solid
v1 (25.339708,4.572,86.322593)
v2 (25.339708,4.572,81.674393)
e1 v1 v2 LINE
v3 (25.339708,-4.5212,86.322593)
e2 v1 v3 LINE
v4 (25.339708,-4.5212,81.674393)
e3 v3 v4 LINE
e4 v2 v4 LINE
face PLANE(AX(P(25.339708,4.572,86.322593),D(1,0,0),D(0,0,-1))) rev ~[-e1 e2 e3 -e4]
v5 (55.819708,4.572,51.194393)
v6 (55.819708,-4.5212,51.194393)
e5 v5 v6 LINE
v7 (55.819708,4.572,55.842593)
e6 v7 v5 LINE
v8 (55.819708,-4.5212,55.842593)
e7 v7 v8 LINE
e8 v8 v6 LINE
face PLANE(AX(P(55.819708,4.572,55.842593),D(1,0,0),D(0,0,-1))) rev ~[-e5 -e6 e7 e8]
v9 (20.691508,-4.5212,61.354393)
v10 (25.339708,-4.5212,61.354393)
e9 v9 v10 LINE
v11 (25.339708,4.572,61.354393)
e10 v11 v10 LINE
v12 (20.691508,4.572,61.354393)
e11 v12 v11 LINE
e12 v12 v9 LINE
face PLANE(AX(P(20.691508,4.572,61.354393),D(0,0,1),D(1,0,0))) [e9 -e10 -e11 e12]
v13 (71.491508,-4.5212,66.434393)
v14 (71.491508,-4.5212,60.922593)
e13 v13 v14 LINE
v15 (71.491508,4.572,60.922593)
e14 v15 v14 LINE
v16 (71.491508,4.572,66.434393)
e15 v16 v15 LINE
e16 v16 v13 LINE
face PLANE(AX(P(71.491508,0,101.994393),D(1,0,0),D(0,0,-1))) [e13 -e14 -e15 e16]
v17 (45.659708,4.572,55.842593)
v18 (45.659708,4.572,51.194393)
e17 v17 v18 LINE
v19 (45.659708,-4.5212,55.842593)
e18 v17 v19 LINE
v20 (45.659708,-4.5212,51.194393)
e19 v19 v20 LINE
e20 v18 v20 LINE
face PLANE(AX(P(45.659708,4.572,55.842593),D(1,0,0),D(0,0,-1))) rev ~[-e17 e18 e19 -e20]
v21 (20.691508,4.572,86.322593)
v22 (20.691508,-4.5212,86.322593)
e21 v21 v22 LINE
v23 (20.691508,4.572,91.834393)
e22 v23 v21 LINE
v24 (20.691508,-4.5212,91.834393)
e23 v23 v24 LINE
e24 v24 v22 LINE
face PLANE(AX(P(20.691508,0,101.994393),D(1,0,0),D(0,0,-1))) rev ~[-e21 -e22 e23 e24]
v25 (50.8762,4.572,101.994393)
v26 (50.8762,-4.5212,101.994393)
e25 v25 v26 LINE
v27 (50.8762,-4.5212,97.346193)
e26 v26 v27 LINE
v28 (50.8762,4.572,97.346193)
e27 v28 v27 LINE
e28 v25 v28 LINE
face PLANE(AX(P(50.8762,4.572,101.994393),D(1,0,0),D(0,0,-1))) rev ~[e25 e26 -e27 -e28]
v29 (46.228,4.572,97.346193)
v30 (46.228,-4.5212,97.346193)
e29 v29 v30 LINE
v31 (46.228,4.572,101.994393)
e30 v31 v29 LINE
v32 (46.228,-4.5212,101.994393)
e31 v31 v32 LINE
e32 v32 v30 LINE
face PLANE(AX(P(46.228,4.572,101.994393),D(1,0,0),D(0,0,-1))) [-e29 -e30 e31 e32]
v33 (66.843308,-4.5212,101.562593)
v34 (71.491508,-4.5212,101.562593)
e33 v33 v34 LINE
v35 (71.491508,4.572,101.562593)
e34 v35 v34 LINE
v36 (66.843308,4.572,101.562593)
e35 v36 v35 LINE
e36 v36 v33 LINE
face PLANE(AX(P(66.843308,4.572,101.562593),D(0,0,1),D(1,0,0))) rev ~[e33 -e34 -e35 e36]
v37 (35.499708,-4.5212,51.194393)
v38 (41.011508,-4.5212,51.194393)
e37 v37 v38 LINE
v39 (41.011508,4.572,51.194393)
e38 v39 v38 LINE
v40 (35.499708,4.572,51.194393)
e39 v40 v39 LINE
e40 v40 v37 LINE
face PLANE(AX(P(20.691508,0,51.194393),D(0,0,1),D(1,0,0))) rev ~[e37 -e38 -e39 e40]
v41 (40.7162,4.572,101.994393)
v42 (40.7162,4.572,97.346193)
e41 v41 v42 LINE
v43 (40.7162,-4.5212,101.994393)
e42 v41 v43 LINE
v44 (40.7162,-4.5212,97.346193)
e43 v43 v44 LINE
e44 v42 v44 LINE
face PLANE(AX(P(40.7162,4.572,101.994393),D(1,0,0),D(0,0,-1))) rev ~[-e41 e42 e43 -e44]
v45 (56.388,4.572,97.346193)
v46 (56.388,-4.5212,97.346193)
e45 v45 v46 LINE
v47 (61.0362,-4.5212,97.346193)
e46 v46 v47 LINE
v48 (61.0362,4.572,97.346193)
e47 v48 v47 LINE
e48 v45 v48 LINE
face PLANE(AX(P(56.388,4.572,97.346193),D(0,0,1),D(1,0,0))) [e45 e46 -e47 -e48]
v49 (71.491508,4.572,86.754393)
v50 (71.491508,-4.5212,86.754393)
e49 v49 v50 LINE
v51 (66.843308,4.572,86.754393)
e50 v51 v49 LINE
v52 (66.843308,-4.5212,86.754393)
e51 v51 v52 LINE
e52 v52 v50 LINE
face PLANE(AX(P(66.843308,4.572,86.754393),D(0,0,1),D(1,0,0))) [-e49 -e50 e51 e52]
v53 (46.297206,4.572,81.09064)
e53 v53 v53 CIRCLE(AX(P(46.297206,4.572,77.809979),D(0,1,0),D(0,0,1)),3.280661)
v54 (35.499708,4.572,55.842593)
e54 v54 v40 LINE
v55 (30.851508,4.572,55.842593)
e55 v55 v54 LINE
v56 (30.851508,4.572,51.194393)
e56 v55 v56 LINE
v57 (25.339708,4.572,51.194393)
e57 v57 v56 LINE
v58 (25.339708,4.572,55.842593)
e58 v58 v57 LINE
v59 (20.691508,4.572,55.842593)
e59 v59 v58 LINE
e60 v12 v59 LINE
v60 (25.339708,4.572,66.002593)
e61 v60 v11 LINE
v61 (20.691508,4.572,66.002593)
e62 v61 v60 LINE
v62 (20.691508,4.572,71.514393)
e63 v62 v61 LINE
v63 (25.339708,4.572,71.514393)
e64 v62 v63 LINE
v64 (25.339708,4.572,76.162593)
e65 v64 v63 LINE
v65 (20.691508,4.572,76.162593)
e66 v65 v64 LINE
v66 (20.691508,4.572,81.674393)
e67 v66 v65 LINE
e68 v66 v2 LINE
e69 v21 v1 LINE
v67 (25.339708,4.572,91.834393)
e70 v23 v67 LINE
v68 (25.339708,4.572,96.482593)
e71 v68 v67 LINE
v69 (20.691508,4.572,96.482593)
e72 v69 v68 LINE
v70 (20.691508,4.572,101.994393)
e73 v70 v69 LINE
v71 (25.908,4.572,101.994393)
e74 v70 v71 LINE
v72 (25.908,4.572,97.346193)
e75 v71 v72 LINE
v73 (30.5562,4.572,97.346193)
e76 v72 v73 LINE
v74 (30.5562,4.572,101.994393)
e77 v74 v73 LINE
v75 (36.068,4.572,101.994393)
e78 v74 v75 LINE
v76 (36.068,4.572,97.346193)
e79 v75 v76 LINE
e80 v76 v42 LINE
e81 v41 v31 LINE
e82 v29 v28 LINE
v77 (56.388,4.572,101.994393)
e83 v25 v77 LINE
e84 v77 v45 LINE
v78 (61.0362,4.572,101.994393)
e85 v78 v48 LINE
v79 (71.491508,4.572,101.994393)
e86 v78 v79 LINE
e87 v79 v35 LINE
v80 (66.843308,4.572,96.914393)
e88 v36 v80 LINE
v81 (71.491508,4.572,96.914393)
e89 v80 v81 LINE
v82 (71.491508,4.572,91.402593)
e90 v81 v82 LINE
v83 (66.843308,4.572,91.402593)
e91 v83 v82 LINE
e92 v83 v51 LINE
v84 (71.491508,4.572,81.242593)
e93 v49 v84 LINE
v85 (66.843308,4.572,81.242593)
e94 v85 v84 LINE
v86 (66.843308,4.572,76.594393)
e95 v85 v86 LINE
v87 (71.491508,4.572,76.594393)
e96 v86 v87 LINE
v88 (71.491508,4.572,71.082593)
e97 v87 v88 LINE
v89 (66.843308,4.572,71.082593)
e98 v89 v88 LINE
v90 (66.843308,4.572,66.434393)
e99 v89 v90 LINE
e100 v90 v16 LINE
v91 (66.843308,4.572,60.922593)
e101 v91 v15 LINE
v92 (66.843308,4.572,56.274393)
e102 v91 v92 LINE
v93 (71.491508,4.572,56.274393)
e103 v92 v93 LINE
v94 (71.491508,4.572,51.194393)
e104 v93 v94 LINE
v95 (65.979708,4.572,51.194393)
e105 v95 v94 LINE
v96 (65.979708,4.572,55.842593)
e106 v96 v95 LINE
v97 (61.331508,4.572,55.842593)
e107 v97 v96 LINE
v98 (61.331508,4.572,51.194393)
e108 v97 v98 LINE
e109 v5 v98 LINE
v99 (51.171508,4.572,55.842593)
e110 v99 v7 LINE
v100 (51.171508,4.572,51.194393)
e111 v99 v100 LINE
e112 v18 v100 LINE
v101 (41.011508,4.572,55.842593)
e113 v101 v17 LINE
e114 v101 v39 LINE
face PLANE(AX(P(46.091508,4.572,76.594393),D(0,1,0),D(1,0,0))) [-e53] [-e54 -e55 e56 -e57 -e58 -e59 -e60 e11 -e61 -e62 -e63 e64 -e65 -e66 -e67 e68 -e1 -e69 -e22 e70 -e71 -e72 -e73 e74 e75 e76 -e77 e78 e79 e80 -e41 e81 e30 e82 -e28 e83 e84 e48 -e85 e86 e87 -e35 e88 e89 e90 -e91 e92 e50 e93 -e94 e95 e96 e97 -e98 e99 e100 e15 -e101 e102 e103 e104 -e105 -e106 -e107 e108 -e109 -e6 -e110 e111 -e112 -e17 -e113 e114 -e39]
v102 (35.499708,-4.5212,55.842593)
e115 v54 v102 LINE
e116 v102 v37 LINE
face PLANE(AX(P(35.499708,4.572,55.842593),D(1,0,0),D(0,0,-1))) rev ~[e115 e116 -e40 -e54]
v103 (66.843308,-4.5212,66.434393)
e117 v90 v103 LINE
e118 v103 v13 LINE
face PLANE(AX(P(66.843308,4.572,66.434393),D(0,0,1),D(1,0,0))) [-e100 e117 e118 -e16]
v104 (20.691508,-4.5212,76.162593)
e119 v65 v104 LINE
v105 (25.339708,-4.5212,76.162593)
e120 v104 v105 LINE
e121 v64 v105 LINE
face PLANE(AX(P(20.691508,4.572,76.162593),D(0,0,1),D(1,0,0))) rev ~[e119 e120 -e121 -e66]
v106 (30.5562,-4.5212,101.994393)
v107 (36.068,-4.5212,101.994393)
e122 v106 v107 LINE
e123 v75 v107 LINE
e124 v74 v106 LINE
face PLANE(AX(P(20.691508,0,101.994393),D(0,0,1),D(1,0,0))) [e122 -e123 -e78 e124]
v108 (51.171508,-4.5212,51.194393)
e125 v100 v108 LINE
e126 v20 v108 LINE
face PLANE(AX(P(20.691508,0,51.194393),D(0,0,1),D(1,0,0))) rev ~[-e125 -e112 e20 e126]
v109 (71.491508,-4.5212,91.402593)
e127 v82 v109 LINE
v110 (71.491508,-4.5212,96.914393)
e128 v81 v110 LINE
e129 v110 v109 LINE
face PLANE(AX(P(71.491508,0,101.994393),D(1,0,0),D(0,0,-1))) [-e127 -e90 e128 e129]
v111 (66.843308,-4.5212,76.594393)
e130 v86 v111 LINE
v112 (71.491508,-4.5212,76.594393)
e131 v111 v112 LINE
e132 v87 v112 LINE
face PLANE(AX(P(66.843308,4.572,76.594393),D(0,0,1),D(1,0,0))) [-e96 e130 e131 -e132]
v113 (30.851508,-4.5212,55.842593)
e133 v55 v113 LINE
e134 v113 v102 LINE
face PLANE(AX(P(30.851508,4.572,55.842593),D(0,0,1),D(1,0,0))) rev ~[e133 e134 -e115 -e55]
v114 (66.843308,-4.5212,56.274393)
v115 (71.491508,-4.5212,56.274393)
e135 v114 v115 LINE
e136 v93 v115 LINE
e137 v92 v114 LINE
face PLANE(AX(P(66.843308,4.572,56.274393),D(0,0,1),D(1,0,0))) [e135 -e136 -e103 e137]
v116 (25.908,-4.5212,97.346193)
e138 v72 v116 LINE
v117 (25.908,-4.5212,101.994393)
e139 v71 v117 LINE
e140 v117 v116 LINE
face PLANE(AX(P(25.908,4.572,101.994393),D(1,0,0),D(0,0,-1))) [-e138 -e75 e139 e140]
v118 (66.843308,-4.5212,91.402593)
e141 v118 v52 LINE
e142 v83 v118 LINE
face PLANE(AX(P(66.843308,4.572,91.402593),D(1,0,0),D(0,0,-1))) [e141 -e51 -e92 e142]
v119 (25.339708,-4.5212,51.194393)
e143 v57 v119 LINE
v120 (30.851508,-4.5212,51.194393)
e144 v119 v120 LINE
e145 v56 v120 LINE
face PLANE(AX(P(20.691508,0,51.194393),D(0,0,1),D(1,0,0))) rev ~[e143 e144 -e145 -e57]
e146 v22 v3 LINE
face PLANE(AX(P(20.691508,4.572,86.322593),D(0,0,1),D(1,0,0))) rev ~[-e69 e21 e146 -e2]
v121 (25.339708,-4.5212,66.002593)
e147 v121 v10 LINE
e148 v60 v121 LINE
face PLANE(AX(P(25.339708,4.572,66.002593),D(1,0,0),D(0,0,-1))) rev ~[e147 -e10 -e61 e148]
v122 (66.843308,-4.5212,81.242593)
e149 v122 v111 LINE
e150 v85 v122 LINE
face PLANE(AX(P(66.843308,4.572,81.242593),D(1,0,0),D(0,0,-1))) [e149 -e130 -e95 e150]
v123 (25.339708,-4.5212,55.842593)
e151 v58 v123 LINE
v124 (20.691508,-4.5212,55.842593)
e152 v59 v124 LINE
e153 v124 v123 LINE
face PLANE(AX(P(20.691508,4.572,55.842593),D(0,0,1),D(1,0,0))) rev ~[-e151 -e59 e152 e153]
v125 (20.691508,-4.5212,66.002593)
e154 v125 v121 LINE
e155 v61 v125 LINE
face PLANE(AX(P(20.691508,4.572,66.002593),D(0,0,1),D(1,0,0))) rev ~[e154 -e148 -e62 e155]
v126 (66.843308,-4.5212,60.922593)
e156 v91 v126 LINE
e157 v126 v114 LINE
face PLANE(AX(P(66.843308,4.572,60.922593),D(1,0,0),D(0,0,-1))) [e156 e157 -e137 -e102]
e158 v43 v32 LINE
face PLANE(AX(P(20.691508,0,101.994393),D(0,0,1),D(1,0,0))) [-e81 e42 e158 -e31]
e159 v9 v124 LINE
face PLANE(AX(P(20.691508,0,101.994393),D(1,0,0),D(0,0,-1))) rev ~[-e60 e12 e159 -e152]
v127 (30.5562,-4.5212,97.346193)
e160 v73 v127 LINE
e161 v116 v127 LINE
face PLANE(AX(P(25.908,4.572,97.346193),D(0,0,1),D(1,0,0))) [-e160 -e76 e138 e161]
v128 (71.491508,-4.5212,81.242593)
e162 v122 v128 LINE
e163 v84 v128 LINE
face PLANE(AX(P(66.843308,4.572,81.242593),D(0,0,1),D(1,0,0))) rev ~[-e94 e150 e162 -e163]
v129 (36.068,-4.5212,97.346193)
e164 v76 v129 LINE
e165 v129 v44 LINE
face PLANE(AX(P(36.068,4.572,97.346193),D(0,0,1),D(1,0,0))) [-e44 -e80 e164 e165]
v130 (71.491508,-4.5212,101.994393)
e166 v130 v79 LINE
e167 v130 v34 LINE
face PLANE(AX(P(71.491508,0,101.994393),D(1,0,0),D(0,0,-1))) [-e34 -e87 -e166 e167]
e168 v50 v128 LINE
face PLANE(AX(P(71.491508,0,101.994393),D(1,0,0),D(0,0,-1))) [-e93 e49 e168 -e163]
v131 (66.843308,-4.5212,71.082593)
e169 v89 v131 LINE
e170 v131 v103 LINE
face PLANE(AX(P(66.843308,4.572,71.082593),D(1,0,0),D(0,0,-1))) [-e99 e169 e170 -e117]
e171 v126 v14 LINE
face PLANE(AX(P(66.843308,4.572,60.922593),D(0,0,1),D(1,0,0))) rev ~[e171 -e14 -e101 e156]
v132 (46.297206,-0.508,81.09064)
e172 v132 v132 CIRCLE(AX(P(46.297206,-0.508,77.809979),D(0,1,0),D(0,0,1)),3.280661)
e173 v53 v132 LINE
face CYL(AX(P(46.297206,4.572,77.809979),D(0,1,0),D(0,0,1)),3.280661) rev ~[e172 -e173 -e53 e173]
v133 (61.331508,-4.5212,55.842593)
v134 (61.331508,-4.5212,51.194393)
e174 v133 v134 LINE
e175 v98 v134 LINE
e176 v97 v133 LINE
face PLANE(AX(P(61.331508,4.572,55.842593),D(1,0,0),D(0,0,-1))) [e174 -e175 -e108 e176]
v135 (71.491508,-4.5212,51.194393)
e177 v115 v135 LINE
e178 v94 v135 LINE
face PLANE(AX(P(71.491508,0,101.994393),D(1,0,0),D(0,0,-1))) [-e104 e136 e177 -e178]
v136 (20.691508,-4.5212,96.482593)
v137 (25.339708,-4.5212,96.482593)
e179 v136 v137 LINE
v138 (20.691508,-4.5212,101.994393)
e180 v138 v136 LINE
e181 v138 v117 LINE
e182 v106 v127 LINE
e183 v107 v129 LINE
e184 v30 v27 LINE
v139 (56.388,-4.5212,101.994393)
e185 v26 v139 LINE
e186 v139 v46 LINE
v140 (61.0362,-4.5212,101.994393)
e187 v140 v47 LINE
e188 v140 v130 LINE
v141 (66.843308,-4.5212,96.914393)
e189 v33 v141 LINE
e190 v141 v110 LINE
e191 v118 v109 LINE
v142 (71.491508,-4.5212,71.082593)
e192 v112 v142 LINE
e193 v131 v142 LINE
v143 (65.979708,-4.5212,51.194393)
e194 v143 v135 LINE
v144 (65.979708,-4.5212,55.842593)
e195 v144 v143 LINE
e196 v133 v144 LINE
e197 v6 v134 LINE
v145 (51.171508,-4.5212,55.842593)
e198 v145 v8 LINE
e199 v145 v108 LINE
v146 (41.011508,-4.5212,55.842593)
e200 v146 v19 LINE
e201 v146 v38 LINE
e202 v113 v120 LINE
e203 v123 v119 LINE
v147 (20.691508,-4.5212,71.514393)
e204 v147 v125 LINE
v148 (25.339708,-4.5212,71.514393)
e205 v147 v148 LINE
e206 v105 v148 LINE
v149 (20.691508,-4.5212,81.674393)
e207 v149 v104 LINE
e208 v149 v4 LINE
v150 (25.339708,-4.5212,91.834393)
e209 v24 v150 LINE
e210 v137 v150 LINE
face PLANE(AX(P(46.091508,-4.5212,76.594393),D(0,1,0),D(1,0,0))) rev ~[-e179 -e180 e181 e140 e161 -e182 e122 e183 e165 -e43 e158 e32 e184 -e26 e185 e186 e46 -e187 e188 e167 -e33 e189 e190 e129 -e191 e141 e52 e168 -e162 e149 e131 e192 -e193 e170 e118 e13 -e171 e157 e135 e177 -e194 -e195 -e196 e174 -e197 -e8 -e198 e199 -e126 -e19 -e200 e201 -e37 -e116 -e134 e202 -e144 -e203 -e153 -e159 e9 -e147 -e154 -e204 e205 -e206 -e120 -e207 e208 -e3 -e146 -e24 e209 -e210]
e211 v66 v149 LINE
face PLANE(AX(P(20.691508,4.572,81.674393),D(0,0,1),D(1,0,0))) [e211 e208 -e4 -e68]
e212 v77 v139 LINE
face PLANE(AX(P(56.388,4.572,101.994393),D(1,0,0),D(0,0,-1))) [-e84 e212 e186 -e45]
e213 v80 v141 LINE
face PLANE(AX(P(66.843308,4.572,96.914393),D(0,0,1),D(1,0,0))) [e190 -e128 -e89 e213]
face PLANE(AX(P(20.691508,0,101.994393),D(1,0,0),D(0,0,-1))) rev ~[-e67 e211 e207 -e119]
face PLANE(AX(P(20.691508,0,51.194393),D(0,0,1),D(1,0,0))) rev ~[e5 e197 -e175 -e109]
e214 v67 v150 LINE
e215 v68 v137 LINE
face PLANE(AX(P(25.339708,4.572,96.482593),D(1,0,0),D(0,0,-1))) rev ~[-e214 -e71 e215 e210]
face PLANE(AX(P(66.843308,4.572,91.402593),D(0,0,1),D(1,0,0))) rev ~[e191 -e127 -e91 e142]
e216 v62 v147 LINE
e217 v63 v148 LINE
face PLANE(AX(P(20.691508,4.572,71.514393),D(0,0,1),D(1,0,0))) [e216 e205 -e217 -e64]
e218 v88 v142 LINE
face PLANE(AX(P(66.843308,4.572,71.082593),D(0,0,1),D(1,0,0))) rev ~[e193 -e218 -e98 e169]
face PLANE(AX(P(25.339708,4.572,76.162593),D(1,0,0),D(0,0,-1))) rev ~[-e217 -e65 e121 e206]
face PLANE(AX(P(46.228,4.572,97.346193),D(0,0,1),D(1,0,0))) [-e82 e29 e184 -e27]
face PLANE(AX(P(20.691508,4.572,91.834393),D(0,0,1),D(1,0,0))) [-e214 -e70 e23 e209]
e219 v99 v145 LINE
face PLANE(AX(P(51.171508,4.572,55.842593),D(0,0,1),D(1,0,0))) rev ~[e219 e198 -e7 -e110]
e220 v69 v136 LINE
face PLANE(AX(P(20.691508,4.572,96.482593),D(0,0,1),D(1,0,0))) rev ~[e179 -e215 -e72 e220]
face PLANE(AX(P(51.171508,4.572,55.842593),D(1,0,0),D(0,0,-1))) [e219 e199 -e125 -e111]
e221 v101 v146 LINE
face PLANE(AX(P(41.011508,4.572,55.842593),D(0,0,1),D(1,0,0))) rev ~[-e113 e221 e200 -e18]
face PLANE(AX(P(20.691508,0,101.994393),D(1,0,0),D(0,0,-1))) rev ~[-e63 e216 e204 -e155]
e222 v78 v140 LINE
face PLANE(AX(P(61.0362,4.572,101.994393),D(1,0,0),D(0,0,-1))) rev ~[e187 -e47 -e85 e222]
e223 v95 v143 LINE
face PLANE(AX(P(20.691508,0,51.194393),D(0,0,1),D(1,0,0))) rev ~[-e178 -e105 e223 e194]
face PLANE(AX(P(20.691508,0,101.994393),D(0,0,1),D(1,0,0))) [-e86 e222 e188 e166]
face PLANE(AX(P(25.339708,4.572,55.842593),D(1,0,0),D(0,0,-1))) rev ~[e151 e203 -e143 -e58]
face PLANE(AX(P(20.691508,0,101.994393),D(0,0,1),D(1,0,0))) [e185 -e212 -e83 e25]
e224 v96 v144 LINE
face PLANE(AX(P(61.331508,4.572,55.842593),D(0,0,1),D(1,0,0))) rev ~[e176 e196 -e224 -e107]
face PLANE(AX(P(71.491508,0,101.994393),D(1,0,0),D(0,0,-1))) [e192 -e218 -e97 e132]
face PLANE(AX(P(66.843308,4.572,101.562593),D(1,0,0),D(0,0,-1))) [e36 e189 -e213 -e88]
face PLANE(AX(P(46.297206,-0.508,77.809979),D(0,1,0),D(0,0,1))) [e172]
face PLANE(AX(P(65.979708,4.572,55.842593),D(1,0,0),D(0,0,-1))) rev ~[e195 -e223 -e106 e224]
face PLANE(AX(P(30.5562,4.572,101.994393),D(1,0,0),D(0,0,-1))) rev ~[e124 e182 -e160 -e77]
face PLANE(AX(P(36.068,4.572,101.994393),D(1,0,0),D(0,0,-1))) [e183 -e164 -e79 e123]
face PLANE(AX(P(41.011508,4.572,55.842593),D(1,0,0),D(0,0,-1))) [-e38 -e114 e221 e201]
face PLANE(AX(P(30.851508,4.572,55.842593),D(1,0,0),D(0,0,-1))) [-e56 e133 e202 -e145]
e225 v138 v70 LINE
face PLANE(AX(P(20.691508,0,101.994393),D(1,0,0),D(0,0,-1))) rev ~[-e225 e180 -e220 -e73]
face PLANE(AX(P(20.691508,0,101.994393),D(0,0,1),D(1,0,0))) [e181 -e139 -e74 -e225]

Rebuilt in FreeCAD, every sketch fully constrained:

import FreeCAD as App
import Part
import Sketcher
Q = App.Units.Quantity


def add_polygon(sketch, points):
    """Adds a closed chain of lines whose ends are joined by coincident constraints."""
    first, n = sketch.GeometryCount, len(points)
    for a, b in zip(points, points[1:] + points[:1]):
        sketch.addGeometry(Part.LineSegment(App.Vector(*a, 0), App.Vector(*b, 0)), False)
    for i in range(n):
        sketch.addConstraint(Sketcher.Constraint("Coincident", first + i, 2, first + (i + 1) % n, 1))

doc = App.newDocument("Part")
body = doc.addObject("PartDesign::Body", "Body")

# Sketch on XZ plane
sketch1 = body.newObject("Sketcher::SketchObject", "Sketch")
sketch1.AttachmentSupport = (doc.getObject("XZ_Plane"), [""])
sketch1.MapMode = "FlatFace"
add_polygon(sketch1, [(21, 51), (21, 102), (71, 102), (71, 51)])  # lines 0-3
sketch1.addConstraint(Sketcher.Constraint("Vertical", 0))
sketch1.addConstraint(Sketcher.Constraint("Horizontal", 1))
sketch1.addConstraint(Sketcher.Constraint("Vertical", 2))
sketch1.addConstraint(Sketcher.Constraint("Horizontal", 3))
sketch1.addConstraint(Sketcher.Constraint("Equal", 3, 0))
sketch1.addConstraint(Sketcher.Constraint("DistanceX", 1, 1, 1, 2, Q("2 in")))
sketch1.addConstraint(Sketcher.Constraint("DistanceX", -1, 1, 0, 2, 20.691508))
sketch1.addConstraint(Sketcher.Constraint("DistanceY", -1, 1, 0, 2, 101.994393))
pad1 = body.newObject("PartDesign::Pad", "Pad")
pad1.Profile = sketch1
pad1.Type = "TwoLengths"
pad1.Length = Q("0.18 in")
pad1.Length2 = Q("0.178 in")
pad1.Reversed = True

# Sketch on XZ plane
sketch2 = body.newObject("Sketcher::SketchObject", "Sketch001")
sketch2.AttachmentSupport = (doc.getObject("XZ_Plane"), [""])
sketch2.MapMode = "FlatFace"
sketch2.AttachmentOffset = App.Placement(App.Vector(0, 0, -0.18 * 25.4), App.Rotation())
add_polygon(sketch2, [(20.7, 51.2), (20.7, 55.8), (25.3, 55.8), (25.3, 51.2)])  # lines 0-3
sketch2.addConstraint(Sketcher.Constraint("Vertical", 0))
sketch2.addConstraint(Sketcher.Constraint("Horizontal", 1))
sketch2.addConstraint(Sketcher.Constraint("Vertical", 2))
sketch2.addConstraint(Sketcher.Constraint("Horizontal", 3))
sketch2.addConstraint(Sketcher.Constraint("Equal", 3, 0))
sketch2.addConstraint(Sketcher.Constraint("DistanceX", 1, 1, 1, 2, Q("0.183 in")))
sketch2.addConstraint(Sketcher.Constraint("DistanceX", -1, 1, 0, 2, 20.691508))
sketch2.addConstraint(Sketcher.Constraint("DistanceY", -1, 1, 0, 2, 55.842593))
pocket1 = body.newObject("PartDesign::Pocket", "Pocket")
pocket1.Profile = sketch2
pocket1.Length = Q("0.358 in")
pocket1.Reversed = True

# Sketch on XZ plane
sketch3 = body.newObject("Sketcher::SketchObject", "Sketch002")
sketch3.AttachmentSupport = (doc.getObject("XZ_Plane"), [""])
sketch3.MapMode = "FlatFace"
sketch3.AttachmentOffset = App.Placement(App.Vector(0, 0, -0.18 * 25.4), App.Rotation())
sketch3.addGeometry(Part.Circle(App.Vector(46.3, 77.8, 0), App.Vector(0, 0, 1), 3.3), False)
sketch3.addConstraint(Sketcher.Constraint("Diameter", 0, 6.561322))
sketch3.addConstraint(Sketcher.Constraint("DistanceY", -1, 1, 0, 3, 77.809979))
sketch3.addConstraint(Sketcher.Constraint("DistanceX", -1, 1, 0, 3, 46.297206))
pocket2 = body.newObject("PartDesign::Pocket", "Pocket001")
pocket2.Profile = sketch3
pocket2.Length = Q("0.2 in")
pocket2.Reversed = True

# Sketch on XZ plane
sketch4 = body.newObject("Sketcher::SketchObject", "Sketch003")
sketch4.AttachmentSupport = (doc.getObject("XZ_Plane"), [""])
sketch4.MapMode = "FlatFace"
sketch4.AttachmentOffset = App.Placement(App.Vector(0, 0, -0.18 * 25.4), App.Rotation())
add_polygon(sketch4, [(66.8, 56.3), (66.8, 60.9), (71.5, 60.9), (71.5, 56.3)])  # lines 0-3
sketch4.addConstraint(Sketcher.Constraint("Vertical", 0))
sketch4.addConstraint(Sketcher.Constraint("Horizontal", 1))
sketch4.addConstraint(Sketcher.Constraint("Vertical", 2))
sketch4.addConstraint(Sketcher.Constraint("Horizontal", 3))
sketch4.addConstraint(Sketcher.Constraint("Equal", 3, 0))
sketch4.addConstraint(Sketcher.Constraint("DistanceX", 1, 1, 1, 2, Q("0.183 in")))
sketch4.addConstraint(Sketcher.Constraint("DistanceX", -1, 1, 0, 2, 66.843308))
sketch4.addConstraint(Sketcher.Constraint("DistanceY", -1, 1, 0, 2, 60.922593))
pocket3 = body.newObject("PartDesign::Pocket", "Pocket002")
pocket3.Profile = sketch4
pocket3.Length = Q("0.36 in")
pocket3.Reversed = True
doc.recompute()

linearpattern = body.newObject("PartDesign::LinearPattern", "LinearPattern")
linearpattern.Originals = [pocket1]
linearpattern.Direction = (doc.getObject("Z_Axis"), [""])
linearpattern.Mode = "offset"
linearpattern.Offset = Q("0.4 in")
linearpattern.Occurrences = 5
body.Tip = linearpattern
doc.recompute()

linearpattern2 = body.newObject("PartDesign::LinearPattern", "LinearPattern001")
linearpattern2.Originals = [pocket3]
linearpattern2.Direction = (doc.getObject("Z_Axis"), [""])
linearpattern2.Mode = "offset"
linearpattern2.Offset = Q("0.4 in")
linearpattern2.Occurrences = 5
body.Tip = linearpattern2
doc.recompute()

linearpattern3 = body.newObject("PartDesign::LinearPattern", "LinearPattern002")
linearpattern3.Originals = [pocket1]
linearpattern3.Direction = (doc.getObject("X_Axis"), [""])
linearpattern3.Mode = "offset"
linearpattern3.Offset = Q("0.4 in")
linearpattern3.Occurrences = 5
body.Tip = linearpattern3

# Sketch on XZ plane
sketch5 = body.newObject("Sketcher::SketchObject", "Sketch004")
sketch5.AttachmentSupport = (doc.getObject("XZ_Plane"), [""])
sketch5.MapMode = "FlatFace"
sketch5.AttachmentOffset = App.Placement(App.Vector(0, 0, -0.18 * 25.4), App.Rotation())
add_polygon(sketch5, [(25.9, 97.3), (25.9, 102), (30.6, 102), (30.6, 97.3)])  # lines 0-3
sketch5.addConstraint(Sketcher.Constraint("Vertical", 0))
sketch5.addConstraint(Sketcher.Constraint("Horizontal", 1))
sketch5.addConstraint(Sketcher.Constraint("Vertical", 2))
sketch5.addConstraint(Sketcher.Constraint("Horizontal", 3))
sketch5.addConstraint(Sketcher.Constraint("Equal", 3, 0))
sketch5.addConstraint(Sketcher.Constraint("DistanceX", 1, 1, 1, 2, Q("0.183 in")))
sketch5.addConstraint(Sketcher.Constraint("DistanceX", -1, 1, 0, 2, Q("1.02 in")))
sketch5.addConstraint(Sketcher.Constraint("DistanceY", -1, 1, 0, 2, 101.994393))
pocket4 = body.newObject("PartDesign::Pocket", "Pocket003")
pocket4.Profile = sketch5
pocket4.Length = Q("0.36 in")
pocket4.Reversed = True
doc.recompute()

linearpattern4 = body.newObject("PartDesign::LinearPattern", "LinearPattern003")
linearpattern4.Originals = [pocket4]
linearpattern4.Direction = (doc.getObject("X_Axis"), [""])
linearpattern4.Mode = "offset"
linearpattern4.Offset = Q("0.4 in")
linearpattern4.Occurrences = 4
body.Tip = linearpattern4

doc.recompute()
